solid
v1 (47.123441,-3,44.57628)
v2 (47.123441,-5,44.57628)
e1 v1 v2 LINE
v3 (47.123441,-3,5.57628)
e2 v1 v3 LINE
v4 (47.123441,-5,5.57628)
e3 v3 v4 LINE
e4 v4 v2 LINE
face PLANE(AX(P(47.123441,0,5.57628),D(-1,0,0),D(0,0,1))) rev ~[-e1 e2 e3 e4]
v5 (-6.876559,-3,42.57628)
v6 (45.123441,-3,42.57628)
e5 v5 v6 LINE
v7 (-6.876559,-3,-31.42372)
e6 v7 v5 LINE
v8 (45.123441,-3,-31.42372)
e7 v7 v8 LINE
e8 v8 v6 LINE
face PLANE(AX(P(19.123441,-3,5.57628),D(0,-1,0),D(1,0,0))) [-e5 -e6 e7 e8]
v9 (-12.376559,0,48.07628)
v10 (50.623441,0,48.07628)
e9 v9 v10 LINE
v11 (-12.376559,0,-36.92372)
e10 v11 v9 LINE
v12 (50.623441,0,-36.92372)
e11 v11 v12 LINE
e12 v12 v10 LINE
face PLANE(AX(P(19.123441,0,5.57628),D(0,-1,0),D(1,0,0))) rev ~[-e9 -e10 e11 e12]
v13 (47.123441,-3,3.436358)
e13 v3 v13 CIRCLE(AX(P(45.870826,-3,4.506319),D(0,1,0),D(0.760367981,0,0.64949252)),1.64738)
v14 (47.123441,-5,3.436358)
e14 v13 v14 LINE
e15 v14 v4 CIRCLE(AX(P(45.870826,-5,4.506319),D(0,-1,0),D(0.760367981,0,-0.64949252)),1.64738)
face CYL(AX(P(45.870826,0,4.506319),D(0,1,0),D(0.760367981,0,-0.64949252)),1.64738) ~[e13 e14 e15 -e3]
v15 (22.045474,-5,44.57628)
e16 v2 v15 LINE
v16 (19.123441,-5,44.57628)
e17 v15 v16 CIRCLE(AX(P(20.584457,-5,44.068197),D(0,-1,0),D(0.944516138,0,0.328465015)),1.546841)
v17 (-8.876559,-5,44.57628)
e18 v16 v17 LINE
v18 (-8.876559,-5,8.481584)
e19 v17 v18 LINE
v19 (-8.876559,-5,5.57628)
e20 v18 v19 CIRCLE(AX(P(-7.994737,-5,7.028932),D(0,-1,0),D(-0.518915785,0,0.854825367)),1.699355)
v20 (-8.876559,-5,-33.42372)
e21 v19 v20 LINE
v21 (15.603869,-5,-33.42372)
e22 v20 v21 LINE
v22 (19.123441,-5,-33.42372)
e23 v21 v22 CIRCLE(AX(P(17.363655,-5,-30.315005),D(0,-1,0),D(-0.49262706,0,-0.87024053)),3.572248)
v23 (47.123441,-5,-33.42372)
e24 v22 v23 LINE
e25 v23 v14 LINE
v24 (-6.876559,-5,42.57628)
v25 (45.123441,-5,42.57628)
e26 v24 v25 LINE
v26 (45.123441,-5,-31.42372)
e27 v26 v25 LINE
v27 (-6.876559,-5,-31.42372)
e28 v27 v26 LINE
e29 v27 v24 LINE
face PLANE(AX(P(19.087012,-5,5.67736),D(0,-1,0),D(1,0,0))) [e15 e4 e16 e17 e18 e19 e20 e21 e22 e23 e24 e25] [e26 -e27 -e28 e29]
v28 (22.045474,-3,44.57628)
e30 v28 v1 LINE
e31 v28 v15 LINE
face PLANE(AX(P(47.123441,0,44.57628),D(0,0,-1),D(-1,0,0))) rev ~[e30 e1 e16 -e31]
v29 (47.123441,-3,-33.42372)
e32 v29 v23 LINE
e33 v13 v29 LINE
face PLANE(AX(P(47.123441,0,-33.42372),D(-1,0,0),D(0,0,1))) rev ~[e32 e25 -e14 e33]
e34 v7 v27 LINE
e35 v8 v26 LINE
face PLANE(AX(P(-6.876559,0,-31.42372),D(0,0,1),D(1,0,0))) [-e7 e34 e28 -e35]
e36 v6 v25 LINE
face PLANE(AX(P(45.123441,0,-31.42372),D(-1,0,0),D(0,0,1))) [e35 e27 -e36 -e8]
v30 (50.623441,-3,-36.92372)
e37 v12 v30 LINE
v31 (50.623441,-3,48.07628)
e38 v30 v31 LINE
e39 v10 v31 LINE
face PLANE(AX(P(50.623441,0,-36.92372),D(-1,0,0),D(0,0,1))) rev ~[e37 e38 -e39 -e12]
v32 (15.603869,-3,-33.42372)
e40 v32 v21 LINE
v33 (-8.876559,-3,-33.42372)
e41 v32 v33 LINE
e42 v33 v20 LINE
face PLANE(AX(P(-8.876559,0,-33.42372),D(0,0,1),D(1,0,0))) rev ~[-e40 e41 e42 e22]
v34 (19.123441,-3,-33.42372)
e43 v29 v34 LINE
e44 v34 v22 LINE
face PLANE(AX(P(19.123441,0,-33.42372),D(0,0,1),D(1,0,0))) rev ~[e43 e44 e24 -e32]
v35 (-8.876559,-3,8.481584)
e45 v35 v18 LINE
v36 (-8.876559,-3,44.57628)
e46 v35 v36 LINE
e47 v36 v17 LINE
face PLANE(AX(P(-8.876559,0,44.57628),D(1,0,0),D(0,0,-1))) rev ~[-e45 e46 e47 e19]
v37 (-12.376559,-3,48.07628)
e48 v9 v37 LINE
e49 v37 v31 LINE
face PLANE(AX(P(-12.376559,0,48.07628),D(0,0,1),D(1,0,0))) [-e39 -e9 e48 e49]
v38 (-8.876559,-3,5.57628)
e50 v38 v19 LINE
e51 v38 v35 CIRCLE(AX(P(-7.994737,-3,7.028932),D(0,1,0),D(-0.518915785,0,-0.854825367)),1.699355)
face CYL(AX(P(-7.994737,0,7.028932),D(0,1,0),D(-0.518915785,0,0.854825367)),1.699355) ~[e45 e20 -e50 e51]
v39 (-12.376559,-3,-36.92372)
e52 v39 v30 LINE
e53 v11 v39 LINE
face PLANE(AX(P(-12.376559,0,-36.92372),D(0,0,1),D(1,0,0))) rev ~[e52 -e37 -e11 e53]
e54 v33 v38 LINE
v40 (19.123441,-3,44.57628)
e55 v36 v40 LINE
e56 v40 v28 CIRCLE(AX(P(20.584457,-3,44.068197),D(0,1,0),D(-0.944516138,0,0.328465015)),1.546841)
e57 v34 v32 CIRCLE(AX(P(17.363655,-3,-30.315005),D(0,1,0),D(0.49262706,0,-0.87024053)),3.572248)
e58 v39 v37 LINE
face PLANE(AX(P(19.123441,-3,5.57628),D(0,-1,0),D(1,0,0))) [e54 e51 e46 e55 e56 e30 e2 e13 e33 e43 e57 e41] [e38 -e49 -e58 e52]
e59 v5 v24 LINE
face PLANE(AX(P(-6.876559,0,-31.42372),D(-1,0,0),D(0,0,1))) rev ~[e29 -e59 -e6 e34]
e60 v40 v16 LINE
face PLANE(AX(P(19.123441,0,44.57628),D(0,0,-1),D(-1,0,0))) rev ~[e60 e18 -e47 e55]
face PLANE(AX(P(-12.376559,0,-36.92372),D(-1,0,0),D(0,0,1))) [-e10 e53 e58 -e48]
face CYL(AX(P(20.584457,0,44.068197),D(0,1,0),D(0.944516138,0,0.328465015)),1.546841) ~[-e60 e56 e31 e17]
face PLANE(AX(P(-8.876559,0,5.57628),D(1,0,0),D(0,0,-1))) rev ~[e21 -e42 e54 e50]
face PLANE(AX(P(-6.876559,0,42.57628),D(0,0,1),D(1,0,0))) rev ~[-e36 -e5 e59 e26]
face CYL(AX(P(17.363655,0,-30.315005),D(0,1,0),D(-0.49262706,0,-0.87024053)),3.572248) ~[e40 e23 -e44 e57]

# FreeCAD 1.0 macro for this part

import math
import FreeCAD as App
import Part
import Sketcher

V = App.Vector
Q = App.Units.Quantity

doc = App.newDocument("Part")
body = doc.addObject("PartDesign::Body", "Body")

# Sketch on XZ plane
sketch1 = doc.addObject("Sketcher::SketchObject", "Sketch")
body.addObject(sketch1)
sketch1.AttachmentSupport = (doc.XZ_Plane, [""])
sketch1.MapMode = "FlatFace"
sketch1.addGeometry([
    Part.LineSegment(V(19.123441, -33.42372, 0), V(47.123441, -33.42372, 0)),  # 0
    Part.LineSegment(V(47.123441, -33.42372, 0), V(47.123441, 3.436358, 0)),  # 1
    Part.ArcOfCircle(Part.Circle(V(45.870826, 4.506319, 0), V(0, 0, 1), 1.64738), math.radians(-40.503351), math.radians(40.503351)),  # 2
    Part.LineSegment(V(47.123441, 5.57628, 0), V(47.123441, 44.57628, 0)),  # 3
    Part.LineSegment(V(47.123441, 44.57628, 0), V(22.045474, 44.57628, 0)),  # 4
    Part.ArcOfCircle(Part.Circle(V(20.584457, 44.068197, 0), V(0, 0, 1), 1.546841), math.radians(19.175635), math.radians(160.824365)),  # 5
    Part.LineSegment(V(19.123441, 44.57628, 0), V(-8.876559, 44.57628, 0)),  # 6
    Part.LineSegment(V(-8.876559, 44.57628, 0), V(-8.876559, 8.481584, 0)),  # 7
    Part.ArcOfCircle(Part.Circle(V(-7.994737, 7.028932, 0), V(0, 0, 1), 1.699355), math.radians(121.259553), math.radians(238.740447)),  # 8
    Part.LineSegment(V(-8.876559, 5.57628, 0), V(-8.876559, -33.42372, 0)),  # 9
    Part.LineSegment(V(-8.876559, -33.42372, 0), V(15.603869, -33.42372, 0)),  # 10
    Part.ArcOfCircle(Part.Circle(V(17.363655, -30.315005, 0), V(0, 0, 1), 3.572248), math.radians(-119.513397), math.radians(-60.486603)),  # 11
    Part.LineSegment(V(45.123441, -31.42372, 0), V(-6.876559, -31.42372, 0)),  # 12
    Part.LineSegment(V(-6.876559, -31.42372, 0), V(-6.876559, 42.57628, 0)),  # 13
    Part.LineSegment(V(-6.876559, 42.57628, 0), V(45.123441, 42.57628, 0)),  # 14
    Part.LineSegment(V(45.123441, 42.57628, 0), V(45.123441, -31.42372, 0)),  # 15
], False)
sketch1.addConstraint([
    Sketcher.Constraint("Coincident", 0, 2, 1, 1),
    Sketcher.Constraint("Coincident", 1, 2, 2, 1),
    Sketcher.Constraint("Coincident", 2, 2, 3, 1),
    Sketcher.Constraint("Coincident", 3, 2, 4, 1),
    Sketcher.Constraint("Coincident", 4, 2, 5, 1),
    Sketcher.Constraint("Coincident", 5, 2, 6, 1),
    Sketcher.Constraint("Coincident", 6, 2, 7, 1),
    Sketcher.Constraint("Coincident", 7, 2, 8, 1),
    Sketcher.Constraint("Coincident", 8, 2, 9, 1),
    Sketcher.Constraint("Coincident", 9, 2, 10, 1),
    Sketcher.Constraint("Coincident", 10, 2, 11, 1),
    Sketcher.Constraint("Coincident", 11, 2, 0, 1),
    Sketcher.Constraint("Coincident", 12, 2, 13, 1),
    Sketcher.Constraint("Coincident", 13, 2, 14, 1),
    Sketcher.Constraint("Coincident", 14, 2, 15, 1),
    Sketcher.Constraint("Coincident", 15, 2, 12, 1),
    Sketcher.Constraint("Horizontal", 0),
    Sketcher.Constraint("Vertical", 1),
    Sketcher.Constraint("Vertical", 3),
    Sketcher.Constraint("Horizontal", 4),
    Sketcher.Constraint("Horizontal", 6),
    Sketcher.Constraint("Vertical", 7),
    Sketcher.Constraint("Vertical", 9),
    Sketcher.Constraint("Horizontal", 10),
    Sketcher.Constraint("Horizontal", 12),
    Sketcher.Constraint("Vertical", 13),
    Sketcher.Constraint("Horizontal", 14),
    Sketcher.Constraint("Vertical", 15),
    Sketcher.Constraint("Horizontal", 4, 2, 5, 2),
    Sketcher.Constraint("Horizontal", 2, 2, 8, 2),
    Sketcher.Constraint("Horizontal", 0, 2, 9, 2),
    Sketcher.Constraint("Vertical", 1, 2, 2, 2),
    Sketcher.Constraint("Vertical", 7, 2, 8, 2),
    Sketcher.Constraint("Vertical", 5, 2, 11, 2),
    Sketcher.Constraint("Equal", 0, 6),
    Sketcher.Constraint("Equal", 3, 9),
    Sketcher.Constraint("DistanceX", 0, 1, 0, 2, Q("28 mm")),
    Sketcher.Constraint("DistanceX", 12, 2, 12, 1, Q("52 mm")),
    Sketcher.Constraint("DistanceY", 3, 1, 3, 2, Q("39 mm")),
    Sketcher.Constraint("DistanceY", 13, 1, 13, 2, Q("74 mm")),
    Sketcher.Constraint("DistanceX", 9, 2, 12, 2, Q("2 mm")),
    Sketcher.Constraint("DistanceY", 9, 2, 12, 2, Q("2 mm")),
    Sketcher.Constraint("Radius", 2, Q("1.64738 mm")),
    Sketcher.Constraint("Radius", 5, Q("1.546841 mm")),
    Sketcher.Constraint("Radius", 8, Q("1.699355 mm")),
    Sketcher.Constraint("Radius", 11, Q("3.572248 mm")),
    Sketcher.Constraint("DistanceX", 10, 1, 10, 2, Q("24.480428 mm")),
    Sketcher.Constraint("DistanceY", 11, 3, 5, 3, Q("74.383202 mm")),
    Sketcher.Constraint("DistanceY", 1, 1, 1, 2, Q("36.860078 mm")),
    Sketcher.Constraint("DistanceY", 7, 2, 7, 1, Q("36.094696 mm")),
    Sketcher.Constraint("DistanceY", -1, 1, 2, 3, Q("4.506319 mm")),
    Sketcher.Constraint("DistanceX", -1, 1, 0, 2, Q("47.123441 mm")),
])
pad1 = doc.addObject("PartDesign::Pad", "Pad")
body.addObject(pad1)
pad1.Profile = sketch1
pad1.Length = 5

# Sketch on XZ plane
sketch2 = doc.addObject("Sketcher::SketchObject", "Sketch001")
body.addObject(sketch2)
sketch2.AttachmentSupport = (doc.XZ_Plane, [""])
sketch2.MapMode = "FlatFace"
sketch2.addGeometry([
    Part.LineSegment(V(-12.376559, 48.07628, 0), V(-12.376559, -36.92372, 0)),  # 0
    Part.LineSegment(V(-12.376559, -36.92372, 0), V(50.623441, -36.92372, 0)),  # 1
    Part.LineSegment(V(50.623441, -36.92372, 0), V(50.623441, 48.07628, 0)),  # 2
    Part.LineSegment(V(50.623441, 48.07628, 0), V(-12.376559, 48.07628, 0)),  # 3
    Part.ArcOfCircle(Part.Circle(V(45.870826, 4.506319, 0), V(0, 0, 1), 1.64738), math.radians(-40.503351), math.radians(40.503351)),  # 4
    Part.LineSegment(V(47.123441, 3.436358, 0), V(47.123441, -33.42372, 0)),  # 5
    Part.LineSegment(V(47.123441, -33.42372, 0), V(19.123441, -33.42372, 0)),  # 6
    Part.ArcOfCircle(Part.Circle(V(17.363655, -30.315005, 0), V(0, 0, 1), 3.572248), math.radians(-119.513397), math.radians(-60.486603)),  # 7
    Part.LineSegment(V(15.603869, -33.42372, 0), V(-8.876559, -33.42372, 0)),  # 8
    Part.LineSegment(V(-8.876559, -33.42372, 0), V(-8.876559, 5.57628, 0)),  # 9
    Part.ArcOfCircle(Part.Circle(V(-7.994737, 7.028932, 0), V(0, 0, 1), 1.699355), math.radians(121.259553), math.radians(238.740447)),  # 10
    Part.LineSegment(V(-8.876559, 8.481584, 0), V(-8.876559, 44.57628, 0)),  # 11
    Part.LineSegment(V(-8.876559, 44.57628, 0), V(19.123441, 44.57628, 0)),  # 12
    Part.ArcOfCircle(Part.Circle(V(20.584457, 44.068197, 0), V(0, 0, 1), 1.546841), math.radians(19.175635), math.radians(160.824365)),  # 13
    Part.LineSegment(V(22.045474, 44.57628, 0), V(47.123441, 44.57628, 0)),  # 14
    Part.LineSegment(V(47.123441, 44.57628, 0), V(47.123441, 5.57628, 0)),  # 15
    Part.LineSegment(V(-6.876559, 42.57628, 0), V(-6.876559, -31.42372, 0)),  # 16
    Part.LineSegment(V(-6.876559, -31.42372, 0), V(45.123441, -31.42372, 0)),  # 17
    Part.LineSegment(V(45.123441, -31.42372, 0), V(45.123441, 42.57628, 0)),  # 18
    Part.LineSegment(V(45.123441, 42.57628, 0), V(-6.876559, 42.57628, 0)),  # 19
], False)
sketch2.addConstraint([
    Sketcher.Constraint("Coincident", 0, 2, 1, 1),
    Sketcher.Constraint("Coincident", 1, 2, 2, 1),
    Sketcher.Constraint("Coincident", 2, 2, 3, 1),
    Sketcher.Constraint("Coincident", 3, 2, 0, 1),
    Sketcher.Constraint("Coincident", 4, 1, 5, 1),
    Sketcher.Constraint("Coincident", 5, 2, 6, 1),
    Sketcher.Constraint("Coincident", 6, 2, 7, 2),
    Sketcher.Constraint("Coincident", 7, 1, 8, 1),
    Sketcher.Constraint("Coincident", 8, 2, 9, 1),
    Sketcher.Constraint("Coincident", 9, 2, 10, 2),
    Sketcher.Constraint("Coincident", 10, 1, 11, 1),
    Sketcher.Constraint("Coincident", 11, 2, 12, 1),
    Sketcher.Constraint("Coincident", 12, 2, 13, 2),
    Sketcher.Constraint("Coincident", 13, 1, 14, 1),
    Sketcher.Constraint("Coincident", 14, 2, 15, 1),
    Sketcher.Constraint("Coincident", 15, 2, 4, 2),
    Sketcher.Constraint("Coincident", 16, 2, 17, 1),
    Sketcher.Constraint("Coincident", 17, 2, 18, 1),
    Sketcher.Constraint("Coincident", 18, 2, 19, 1),
    Sketcher.Constraint("Coincident", 19, 2, 16, 1),
    Sketcher.Constraint("Vertical", 0),
    Sketcher.Constraint("Horizontal", 1),
    Sketcher.Constraint("Vertical", 2),
    Sketcher.Constraint("Horizontal", 3),
    Sketcher.Constraint("Vertical", 5),
    Sketcher.Constraint("Horizontal", 6),
    Sketcher.Constraint("Horizontal", 8),
    Sketcher.Constraint("Vertical", 9),
    Sketcher.Constraint("Vertical", 11),
    Sketcher.Constraint("Horizontal", 12),
    Sketcher.Constraint("Horizontal", 14),
    Sketcher.Constraint("Vertical", 15),
    Sketcher.Constraint("Vertical", 16),
    Sketcher.Constraint("Horizontal", 17),
    Sketcher.Constraint("Vertical", 18),
    Sketcher.Constraint("Horizontal", 19),
    Sketcher.Constraint("Horizontal", 6, 2, 7, 1),
    Sketcher.Constraint("Horizontal", 12, 2, 13, 1),
    Sketcher.Constraint("Horizontal", 9, 2, 15, 2),
    Sketcher.Constraint("Vertical", 9, 2, 10, 1),
    Sketcher.Constraint("Vertical", 6, 2, 12, 2),
    Sketcher.Constraint("Vertical", 5, 2, 14, 2),
    Sketcher.Constraint("Equal", 6, 12),
    Sketcher.Constraint("Equal", 9, 15),
    Sketcher.Constraint("DistanceX", 1, 1, 1, 2, Q("63 mm")),
    Sketcher.Constraint("DistanceX", 6, 2, 6, 1, Q("28 mm")),
    Sketcher.Constraint("DistanceX", 17, 1, 17, 2, Q("52 mm")),
    Sketcher.Constraint("DistanceY", 0, 2, 0, 1, Q("85 mm")),
    Sketcher.Constraint("DistanceY", 9, 1, 9, 2, Q("39 mm")),
    Sketcher.Constraint("DistanceY", 16, 2, 16, 1, Q("74 mm")),
    Sketcher.Constraint("DistanceX", 8, 2, 16, 2, Q("2 mm")),
    Sketcher.Constraint("DistanceY", 8, 2, 16, 2, Q("2 mm")),
    Sketcher.Constraint("DistanceX", 4, 1, 1, 2, Q("3.5 mm")),
    Sketcher.Constraint("DistanceY", 1, 2, 5, 2, Q("3.5 mm")),
    Sketcher.Constraint("Radius", 4, Q("1.64738 mm")),
    Sketcher.Constraint("Radius", 13, Q("1.546841 mm")),
    Sketcher.Constraint("Radius", 7, Q("3.572248 mm")),
    Sketcher.Constraint("Radius", 10, Q("1.699355 mm")),
    Sketcher.Constraint("DistanceX", 8, 2, 8, 1, Q("24.480428 mm")),
    Sketcher.Constraint("DistanceY", 7, 3, 13, 3, Q("74.383202 mm")),
    Sketcher.Constraint("DistanceY", 5, 2, 5, 1, Q("36.860078 mm")),
    Sketcher.Constraint("DistanceY", 11, 1, 11, 2, Q("36.094696 mm")),
    Sketcher.Constraint("DistanceY", -1, 1, 4, 3, Q("4.506319 mm")),
    Sketcher.Constraint("DistanceX", 0, 2, -1, 1, Q("12.376559 mm")),
])
pad2 = doc.addObject("PartDesign::Pad", "Pad001")
body.addObject(pad2)
pad2.Profile = sketch2
pad2.Length = 3

doc.recompute()
